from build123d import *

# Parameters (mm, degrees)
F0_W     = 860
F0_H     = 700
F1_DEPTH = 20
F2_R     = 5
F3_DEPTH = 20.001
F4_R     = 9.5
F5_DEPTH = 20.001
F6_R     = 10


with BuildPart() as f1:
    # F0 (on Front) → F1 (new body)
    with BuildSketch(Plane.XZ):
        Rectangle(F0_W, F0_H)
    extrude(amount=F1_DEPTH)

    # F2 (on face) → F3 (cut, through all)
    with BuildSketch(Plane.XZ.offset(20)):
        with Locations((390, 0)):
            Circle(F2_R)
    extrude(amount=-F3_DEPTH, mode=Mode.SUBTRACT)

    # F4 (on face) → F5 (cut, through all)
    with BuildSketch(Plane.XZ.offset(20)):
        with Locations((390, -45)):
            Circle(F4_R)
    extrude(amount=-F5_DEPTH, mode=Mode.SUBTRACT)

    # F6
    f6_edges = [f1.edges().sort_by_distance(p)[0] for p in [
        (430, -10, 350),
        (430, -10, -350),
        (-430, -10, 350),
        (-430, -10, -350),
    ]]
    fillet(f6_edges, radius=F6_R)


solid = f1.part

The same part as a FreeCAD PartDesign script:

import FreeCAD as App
import Part
import Sketcher
from FreeCAD import Vector


def edges_at(feature, points):
    """Names of the edges that pass closest to the given points."""
    edges = feature.Shape.Edges
    near = lambda p: min(range(len(edges)), key=lambda i: edges[i].distToShape(Part.Vertex(*p))[0])
    return sorted({f"Edge{near(p) + 1}" for p in points})


def add_polygon(sketch, points):
    """Adds a closed chain of lines whose ends are joined by coincident constraints."""
    first, n = sketch.GeometryCount, len(points)
    for a, b in zip(points, points[1:] + points[:1]):
        sketch.addGeometry(Part.LineSegment(App.Vector(*a, 0), App.Vector(*b, 0)), False)
    for i in range(n):
        sketch.addConstraint(Sketcher.Constraint("Coincident", first + i, 2, first + (i + 1) % n, 1))

doc = App.newDocument("Part")
body = doc.addObject("PartDesign::Body", "Body")

# Sketch on XZ plane
sketch1 = body.newObject("Sketcher::SketchObject", "Sketch")
sketch1.AttachmentSupport = (doc.getObject("XZ_Plane"), [""])
sketch1.MapMode = "FlatFace"
add_polygon(sketch1, [(-430, 350), (-430, -350), (430, -350), (430, 350)])  # lines 0-3
sketch1.addConstraint([
    Sketcher.Constraint("Vertical", 0),
    Sketcher.Constraint("Horizontal", 1),
    Sketcher.Constraint("Vertical", 2),
    Sketcher.Constraint("Horizontal", 3),
    Sketcher.Constraint("Symmetric", 0, 2, 2, 2, -1, 1),
    Sketcher.Constraint("DistanceX", 1, 1, 1, 2, 860.0),
    Sketcher.Constraint("DistanceY", 0, 2, 0, 1, 700.0),
])
pad1 = body.newObject("PartDesign::Pad", "Pad")
pad1.Profile = sketch1
pad1.Length = 20

# Sketch on XZ plane
sketch2 = body.newObject("Sketcher::SketchObject", "Sketch001")
sketch2.AttachmentSupport = (doc.getObject("XZ_Plane"), [""])
sketch2.MapMode = "FlatFace"
sketch2.AttachmentOffset = App.Placement(Vector(0, 0, 20), App.Rotation())
sketch2.addGeometry(Part.Circle(Vector(390, 0, 0), Vector(0, 0, 1), 5), False)
sketch2.addConstraint([
    Sketcher.Constraint("PointOnObject", 0, 3, -1),
    Sketcher.Constraint("Diameter", 0, 10.0),
    Sketcher.Constraint("DistanceX", -1, 1, 0, 3, 390.0),
])
pocket1 = body.newObject("PartDesign::Pocket", "Pocket")
pocket1.Profile = sketch2
pocket1.Type = "ThroughAll"

# Sketch on XZ plane
sketch3 = body.newObject("Sketcher::SketchObject", "Sketch002")
sketch3.AttachmentSupport = (doc.getObject("XZ_Plane"), [""])
sketch3.MapMode = "FlatFace"
sketch3.AttachmentOffset = App.Placement(Vector(0, 0, 20), App.Rotation())
sketch3.addGeometry(Part.Circle(Vector(390, -45, 0), Vector(0, 0, 1), 10), False)
sketch3.addConstraint([
    Sketcher.Constraint("Diameter", 0, 19.0),
    Sketcher.Constraint("DistanceX", -1, 1, 0, 3, 390.0),
    Sketcher.Constraint("DistanceY", 0, 3, -1, 1, 45.0),
])
pocket2 = body.newObject("PartDesign::Pocket", "Pocket001")
pocket2.Profile = sketch3
pocket2.Type = "ThroughAll"
doc.recompute()

fillet = body.newObject("PartDesign::Fillet", "Fillet")
fillet.Base = (pocket2, edges_at(pocket2, [
    (430, -10, 350),
    (430, -10, -350),
    (-430, -10, 350),
    (-430, -10, -350),
]))
fillet.Radius = 10

doc.recompute()
